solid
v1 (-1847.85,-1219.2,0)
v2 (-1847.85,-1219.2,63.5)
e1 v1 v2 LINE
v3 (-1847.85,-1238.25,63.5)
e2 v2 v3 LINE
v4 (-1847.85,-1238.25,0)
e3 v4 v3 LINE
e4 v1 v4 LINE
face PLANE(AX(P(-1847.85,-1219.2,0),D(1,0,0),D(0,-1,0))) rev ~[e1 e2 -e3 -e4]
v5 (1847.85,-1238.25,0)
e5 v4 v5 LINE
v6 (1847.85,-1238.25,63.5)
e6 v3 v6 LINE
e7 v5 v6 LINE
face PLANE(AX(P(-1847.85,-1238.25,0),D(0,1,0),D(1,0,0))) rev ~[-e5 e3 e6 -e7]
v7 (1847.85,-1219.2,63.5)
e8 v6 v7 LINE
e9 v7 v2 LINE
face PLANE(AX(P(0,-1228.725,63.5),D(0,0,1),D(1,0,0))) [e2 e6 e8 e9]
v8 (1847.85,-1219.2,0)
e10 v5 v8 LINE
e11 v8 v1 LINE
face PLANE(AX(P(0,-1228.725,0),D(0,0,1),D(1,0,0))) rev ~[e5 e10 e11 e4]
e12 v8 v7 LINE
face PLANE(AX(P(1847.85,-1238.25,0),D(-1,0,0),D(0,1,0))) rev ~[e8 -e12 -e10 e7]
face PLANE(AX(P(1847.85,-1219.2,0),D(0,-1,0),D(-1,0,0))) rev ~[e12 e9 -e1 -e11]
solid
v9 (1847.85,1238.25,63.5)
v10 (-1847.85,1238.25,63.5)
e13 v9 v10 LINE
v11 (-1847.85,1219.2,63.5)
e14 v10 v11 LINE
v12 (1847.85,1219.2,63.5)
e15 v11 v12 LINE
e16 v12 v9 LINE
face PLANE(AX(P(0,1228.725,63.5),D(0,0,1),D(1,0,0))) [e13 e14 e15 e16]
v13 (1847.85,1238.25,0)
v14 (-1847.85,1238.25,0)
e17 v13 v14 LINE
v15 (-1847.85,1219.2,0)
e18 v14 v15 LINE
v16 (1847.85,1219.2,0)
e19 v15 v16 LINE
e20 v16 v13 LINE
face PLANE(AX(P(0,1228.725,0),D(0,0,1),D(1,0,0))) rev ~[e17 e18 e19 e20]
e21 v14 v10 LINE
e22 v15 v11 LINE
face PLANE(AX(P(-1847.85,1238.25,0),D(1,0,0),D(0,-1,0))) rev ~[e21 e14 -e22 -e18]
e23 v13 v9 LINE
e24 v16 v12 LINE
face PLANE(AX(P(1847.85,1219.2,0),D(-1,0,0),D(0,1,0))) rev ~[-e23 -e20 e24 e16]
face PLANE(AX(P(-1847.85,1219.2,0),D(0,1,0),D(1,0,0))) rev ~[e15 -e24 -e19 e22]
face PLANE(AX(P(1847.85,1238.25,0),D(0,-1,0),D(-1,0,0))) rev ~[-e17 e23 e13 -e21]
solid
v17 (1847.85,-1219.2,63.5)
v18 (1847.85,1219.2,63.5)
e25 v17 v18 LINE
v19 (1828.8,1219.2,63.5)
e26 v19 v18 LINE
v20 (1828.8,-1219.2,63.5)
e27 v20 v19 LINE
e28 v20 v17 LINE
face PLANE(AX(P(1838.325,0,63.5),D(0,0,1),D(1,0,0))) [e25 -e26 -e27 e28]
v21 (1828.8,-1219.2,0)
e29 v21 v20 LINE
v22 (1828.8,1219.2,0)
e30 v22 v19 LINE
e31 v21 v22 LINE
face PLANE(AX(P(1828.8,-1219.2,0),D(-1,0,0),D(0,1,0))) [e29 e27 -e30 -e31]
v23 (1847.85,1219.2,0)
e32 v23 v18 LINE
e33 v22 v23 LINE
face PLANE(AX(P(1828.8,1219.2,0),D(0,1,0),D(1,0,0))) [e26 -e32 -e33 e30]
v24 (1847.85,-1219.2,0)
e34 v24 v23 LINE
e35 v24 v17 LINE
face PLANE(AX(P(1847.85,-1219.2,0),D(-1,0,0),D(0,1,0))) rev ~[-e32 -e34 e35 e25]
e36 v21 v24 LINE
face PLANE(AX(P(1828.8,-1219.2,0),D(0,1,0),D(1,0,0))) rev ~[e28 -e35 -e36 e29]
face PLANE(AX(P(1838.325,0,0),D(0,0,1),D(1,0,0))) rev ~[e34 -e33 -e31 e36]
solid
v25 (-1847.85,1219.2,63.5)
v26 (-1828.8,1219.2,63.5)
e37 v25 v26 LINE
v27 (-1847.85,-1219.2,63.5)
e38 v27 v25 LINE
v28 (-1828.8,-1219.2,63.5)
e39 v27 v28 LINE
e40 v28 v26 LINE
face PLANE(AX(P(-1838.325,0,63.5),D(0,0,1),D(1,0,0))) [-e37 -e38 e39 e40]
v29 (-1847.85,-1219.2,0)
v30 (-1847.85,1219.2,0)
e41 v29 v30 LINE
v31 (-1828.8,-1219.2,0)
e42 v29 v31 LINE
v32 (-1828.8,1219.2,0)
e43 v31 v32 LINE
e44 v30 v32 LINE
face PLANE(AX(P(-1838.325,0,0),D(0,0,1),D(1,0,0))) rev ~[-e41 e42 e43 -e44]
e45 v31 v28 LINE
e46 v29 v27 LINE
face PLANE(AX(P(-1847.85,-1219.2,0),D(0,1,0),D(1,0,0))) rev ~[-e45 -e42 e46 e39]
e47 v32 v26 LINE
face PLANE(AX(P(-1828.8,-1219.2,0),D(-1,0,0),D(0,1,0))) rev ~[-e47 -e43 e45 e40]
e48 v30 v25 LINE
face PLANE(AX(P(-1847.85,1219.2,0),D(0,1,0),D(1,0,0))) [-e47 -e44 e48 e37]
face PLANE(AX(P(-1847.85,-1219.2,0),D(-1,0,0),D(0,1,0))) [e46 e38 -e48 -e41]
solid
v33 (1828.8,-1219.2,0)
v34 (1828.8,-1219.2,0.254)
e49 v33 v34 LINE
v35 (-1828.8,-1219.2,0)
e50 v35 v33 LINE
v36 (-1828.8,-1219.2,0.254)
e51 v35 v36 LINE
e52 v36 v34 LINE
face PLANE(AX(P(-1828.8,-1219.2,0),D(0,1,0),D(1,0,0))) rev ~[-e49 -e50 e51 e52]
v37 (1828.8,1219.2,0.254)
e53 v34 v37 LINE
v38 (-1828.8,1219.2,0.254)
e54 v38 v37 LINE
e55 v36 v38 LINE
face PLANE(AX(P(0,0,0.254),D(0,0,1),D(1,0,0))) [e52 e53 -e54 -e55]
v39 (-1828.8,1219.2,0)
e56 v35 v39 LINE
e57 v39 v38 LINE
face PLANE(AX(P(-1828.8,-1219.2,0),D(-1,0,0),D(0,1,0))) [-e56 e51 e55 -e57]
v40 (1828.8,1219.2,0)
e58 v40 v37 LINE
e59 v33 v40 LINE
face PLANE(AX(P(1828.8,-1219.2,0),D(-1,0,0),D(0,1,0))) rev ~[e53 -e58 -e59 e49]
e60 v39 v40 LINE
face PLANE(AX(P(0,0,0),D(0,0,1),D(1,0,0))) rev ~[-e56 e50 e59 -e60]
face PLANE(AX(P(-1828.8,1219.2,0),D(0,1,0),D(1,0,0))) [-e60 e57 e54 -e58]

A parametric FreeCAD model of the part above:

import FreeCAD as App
import Part
import Sketcher

V = App.Vector
Q = App.Units.Quantity

doc = App.newDocument("Part")
body = doc.addObject("PartDesign::Body", "Body")

# Sketch on XY plane
sketch1 = doc.addObject("Sketcher::SketchObject", "Sketch")
body.addObject(sketch1)
sketch1.AttachmentSupport = (doc.XY_Plane, [""])
sketch1.MapMode = "FlatFace"
sketch1.addGeometry([
    Part.LineSegment(V(-1848, 1219, 0), V(-1848, -1219, 0)),
    Part.LineSegment(V(-1848, -1219, 0), V(-1829, -1219, 0)),
    Part.LineSegment(V(-1829, -1219, 0), V(-1829, 1219, 0)),
    Part.LineSegment(V(-1829, 1219, 0), V(-1848, 1219, 0)),
], False)
sketch1.addConstraint([
    Sketcher.Constraint("Coincident", 0, 2, 1, 1),
    Sketcher.Constraint("Coincident", 1, 2, 2, 1),
    Sketcher.Constraint("Coincident", 2, 2, 3, 1),
    Sketcher.Constraint("Coincident", 3, 2, 0, 1),
    Sketcher.Constraint("Vertical", 0),
    Sketcher.Constraint("Horizontal", 1),
    Sketcher.Constraint("Vertical", 2),
    Sketcher.Constraint("Horizontal", 3),
    Sketcher.Constraint("DistanceY", 0, 2, 0, 1, Q("96 in")),
    Sketcher.Constraint("DistanceY", 0, 2, -1, 1, Q("48 in")),
    Sketcher.Constraint("DistanceX", 1, 2, -1, 1, Q("72 in")),
    Sketcher.Constraint("DistanceX", 1, 1, 1, 2, Q("0.75 in")),
])
pad1 = doc.addObject("PartDesign::Pad", "Pad")
body.addObject(pad1)
pad1.Profile = sketch1
pad1.Length = Q("2.5 in")
body2 = doc.addObject("PartDesign::Body", "Body001")

# Sketch on XY plane
sketch2 = doc.addObject("Sketcher::SketchObject", "Sketch001")
body2.addObject(sketch2)
sketch2.AttachmentSupport = (doc.getObject("XY_Plane001"), [""])
sketch2.MapMode = "FlatFace"
sketch2.addGeometry([
    Part.LineSegment(V(1829, 1219, 0), V(1829, -1219, 0)),
    Part.LineSegment(V(1829, -1219, 0), V(1848, -1219, 0)),
    Part.LineSegment(V(1848, -1219, 0), V(1848, 1219, 0)),
    Part.LineSegment(V(1848, 1219, 0), V(1829, 1219, 0)),
], False)
sketch2.addConstraint([
    Sketcher.Constraint("Coincident", 0, 2, 1, 1),
    Sketcher.Constraint("Coincident", 1, 2, 2, 1),
    Sketcher.Constraint("Coincident", 2, 2, 3, 1),
    Sketcher.Constraint("Coincident", 3, 2, 0, 1),
    Sketcher.Constraint("Vertical", 0),
    Sketcher.Constraint("Horizontal", 1),
    Sketcher.Constraint("Vertical", 2),
    Sketcher.Constraint("Horizontal", 3),
    Sketcher.Constraint("DistanceY", 0, 2, 0, 1, Q("96 in")),
    Sketcher.Constraint("DistanceX", -1, 1, 0, 2, Q("72 in")),
    Sketcher.Constraint("DistanceY", 0, 2, -1, 1, Q("48 in")),
    Sketcher.Constraint("DistanceX", 1, 1, 1, 2, Q("0.75 in")),
])
pad2 = doc.addObject("PartDesign::Pad", "Pad001")
body2.addObject(pad2)
pad2.Profile = sketch2
pad2.Length = Q("2.5 in")
body3 = doc.addObject("PartDesign::Body", "Body002")

# Sketch on XY plane
sketch3 = doc.addObject("Sketcher::SketchObject", "Sketch002")
body3.addObject(sketch3)
sketch3.AttachmentSupport = (doc.getObject("XY_Plane002"), [""])
sketch3.MapMode = "FlatFace"
sketch3.addGeometry([
    Part.LineSegment(V(-1848, 1238, 0), V(-1848, 1219, 0)),
    Part.LineSegment(V(-1848, 1219, 0), V(1848, 1219, 0)),
    Part.LineSegment(V(1848, 1219, 0), V(1848, 1238, 0)),
    Part.LineSegment(V(1848, 1238, 0), V(-1848, 1238, 0)),
], False)
sketch3.addConstraint([
    Sketcher.Constraint("Coincident", 0, 2, 1, 1),
    Sketcher.Constraint("Coincident", 1, 2, 2, 1),
    Sketcher.Constraint("Coincident", 2, 2, 3, 1),
    Sketcher.Constraint("Coincident", 3, 2, 0, 1),
    Sketcher.Constraint("Vertical", 0),
    Sketcher.Constraint("Horizontal", 1),
    Sketcher.Constraint("Vertical", 2),
    Sketcher.Constraint("Horizontal", 3),
    Sketcher.Constraint("DistanceX", 1, 1, 1, 2, Q("145.5 in")),
    Sketcher.Constraint("DistanceY", -1, 1, 0, 2, Q("48 in")),
    Sketcher.Constraint("DistanceY", 0, 2, 0, 1, Q("0.75 in")),
    Sketcher.Constraint("DistanceX", 0, 2, -1, 1, Q("72.75 in")),
])
pad3 = doc.addObject("PartDesign::Pad", "Pad002")
body3.addObject(pad3)
pad3.Profile = sketch3
pad3.Length = Q("2.5 in")
body4 = doc.addObject("PartDesign::Body", "Body003")

# Sketch on XY plane
sketch4 = doc.addObject("Sketcher::SketchObject", "Sketch003")
body4.addObject(sketch4)
sketch4.AttachmentSupport = (doc.getObject("XY_Plane003"), [""])
sketch4.MapMode = "FlatFace"
sketch4.addGeometry([
    Part.LineSegment(V(-1848, -1219, 0), V(-1848, -1238, 0)),
    Part.LineSegment(V(-1848, -1238, 0), V(1848, -1238, 0)),
    Part.LineSegment(V(1848, -1238, 0), V(1848, -1219, 0)),
    Part.LineSegment(V(1848, -1219, 0), V(-1848, -1219, 0)),
], False)
sketch4.addConstraint([
    Sketcher.Constraint("Coincident", 0, 2, 1, 1),
    Sketcher.Constraint("Coincident", 1, 2, 2, 1),
    Sketcher.Constraint("Coincident", 2, 2, 3, 1),
    Sketcher.Constraint("Coincident", 3, 2, 0, 1),
    Sketcher.Constraint("Vertical", 0),
    Sketcher.Constraint("Horizontal", 1),
    Sketcher.Constraint("Vertical", 2),
    Sketcher.Constraint("Horizontal", 3),
    Sketcher.Constraint("DistanceX", 1, 1, 1, 2, Q("145.5 in")),
    Sketcher.Constraint("DistanceY", 2, 2, -1, 1, Q("48 in")),
    Sketcher.Constraint("DistanceY", 0, 2, 0, 1, Q("0.75 in")),
    Sketcher.Constraint("DistanceX", 0, 2, -1, 1, Q("72.75 in")),
])
pad4 = doc.addObject("PartDesign::Pad", "Pad003")
body4.addObject(pad4)
pad4.Profile = sketch4
pad4.Length = Q("2.5 in")
body5 = doc.addObject("PartDesign::Body", "Body004")

# Sketch on XY plane
sketch5 = doc.addObject("Sketcher::SketchObject", "Sketch004")
body5.addObject(sketch5)
sketch5.AttachmentSupport = (doc.getObject("XY_Plane004"), [""])
sketch5.MapMode = "FlatFace"
sketch5.addGeometry([
    Part.LineSegment(V(-1829, 1219, 0), V(-1829, -1219, 0)),
    Part.LineSegment(V(-1829, -1219, 0), V(1829, -1219, 0)),
    Part.LineSegment(V(1829, -1219, 0), V(1829, 1219, 0)),
    Part.LineSegment(V(1829, 1219, 0), V(-1829, 1219, 0)),
], False)
sketch5.addConstraint([
    Sketcher.Constraint("Coincident", 0, 2, 1, 1),
    Sketcher.Constraint("Coincident", 1, 2, 2, 1),
    Sketcher.Constraint("Coincident", 2, 2, 3, 1),
    Sketcher.Constraint("Coincident", 3, 2, 0, 1),
    Sketcher.Constraint("Vertical", 0),
    Sketcher.Constraint("Horizontal", 1),
    Sketcher.Constraint("Vertical", 2),
    Sketcher.Constraint("Horizontal", 3),
    Sketcher.Constraint("Symmetric", 0, 2, 2, 2, -1, 1),
    Sketcher.Constraint("DistanceX", 1, 1, 1, 2, Q("144 in")),
    Sketcher.Constraint("DistanceY", 0, 2, 0, 1, Q("96 in")),
])
pad5 = doc.addObject("PartDesign::Pad", "Pad004")
body5.addObject(pad5)
pad5.Profile = sketch5
pad5.Length = Q("0.01 in")

doc.recompute()
